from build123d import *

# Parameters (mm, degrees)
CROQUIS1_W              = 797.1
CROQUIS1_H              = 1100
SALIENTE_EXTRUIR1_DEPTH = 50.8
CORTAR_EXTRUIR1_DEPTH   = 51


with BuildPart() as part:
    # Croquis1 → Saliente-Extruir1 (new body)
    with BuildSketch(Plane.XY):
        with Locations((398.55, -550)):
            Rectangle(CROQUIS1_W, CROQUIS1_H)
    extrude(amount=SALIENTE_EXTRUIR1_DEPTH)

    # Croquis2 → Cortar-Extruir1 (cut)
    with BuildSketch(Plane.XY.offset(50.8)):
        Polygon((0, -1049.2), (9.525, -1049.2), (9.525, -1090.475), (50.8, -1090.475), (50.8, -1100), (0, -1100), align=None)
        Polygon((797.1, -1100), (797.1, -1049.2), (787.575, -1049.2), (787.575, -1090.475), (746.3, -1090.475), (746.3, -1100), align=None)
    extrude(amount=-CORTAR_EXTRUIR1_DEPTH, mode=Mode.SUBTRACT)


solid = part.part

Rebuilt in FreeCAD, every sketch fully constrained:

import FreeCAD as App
import Part
import Sketcher

V = App.Vector
Q = App.Units.Quantity

doc = App.newDocument("Part")
body = doc.addObject("PartDesign::Body", "Body")

# Sketch on XY plane
sketch1 = doc.addObject("Sketcher::SketchObject", "Sketch")
body.addObject(sketch1)
sketch1.AttachmentSupport = (doc.XY_Plane, [""])
sketch1.MapMode = "FlatFace"
sketch1.addGeometry(Part.LineSegment(V(0, 0, 0), V(0, -1100, 0)), False)
sketch1.addGeometry(Part.LineSegment(V(0, -1100, 0), V(797, -1100, 0)), False)
sketch1.addGeometry(Part.LineSegment(V(797, -1100, 0), V(797, 0, 0)), False)
sketch1.addGeometry(Part.LineSegment(V(797, 0, 0), V(0, 0, 0)), False)
sketch1.addConstraint(Sketcher.Constraint("Coincident", 0, 2, 1, 1))
sketch1.addConstraint(Sketcher.Constraint("Coincident", 1, 2, 2, 1))
sketch1.addConstraint(Sketcher.Constraint("Coincident", 2, 2, 3, 1))
sketch1.addConstraint(Sketcher.Constraint("Coincident", 3, 2, 0, 1))
sketch1.addConstraint(Sketcher.Constraint("Vertical", 0))
sketch1.addConstraint(Sketcher.Constraint("Horizontal", 1))
sketch1.addConstraint(Sketcher.Constraint("Vertical", 2))
sketch1.addConstraint(Sketcher.Constraint("Horizontal", 3))
sketch1.addConstraint(Sketcher.Constraint("Coincident", 3, 2, -1, 1))
sketch1.addConstraint(Sketcher.Constraint("DistanceY", 0, 2, 0, 1, Q("1100 mm")))
sketch1.addConstraint(Sketcher.Constraint("DistanceX", 1, 1, 1, 2, Q("797.1 mm")))
pad1 = doc.addObject("PartDesign::Pad", "Pad")
body.addObject(pad1)
pad1.Profile = sketch1
pad1.Length = 50.8

# Sketch on XY plane
sketch2 = doc.addObject("Sketcher::SketchObject", "Sketch001")
body.addObject(sketch2)
sketch2.AttachmentSupport = (doc.XY_Plane, [""])
sketch2.MapMode = "FlatFace"
sketch2.AttachmentOffset = App.Placement(V(0, 0, 50.8), App.Rotation())
sketch2.addGeometry(Part.LineSegment(V(10, -1049, 0), V(0, -1049, 0)), False)
sketch2.addGeometry(Part.LineSegment(V(0, -1049, 0), V(0, -1100, 0)), False)
sketch2.addGeometry(Part.LineSegment(V(0, -1100, 0), V(51, -1100, 0)), False)
sketch2.addGeometry(Part.LineSegment(V(51, -1100, 0), V(51, -1090, 0)), False)
sketch2.addGeometry(Part.LineSegment(V(51, -1090, 0), V(10, -1090, 0)), False)
sketch2.addGeometry(Part.LineSegment(V(10, -1090, 0), V(10, -1049, 0)), False)
sketch2.addGeometry(Part.LineSegment(V(797, -1100, 0), V(797, -1049, 0)), False)
sketch2.addGeometry(Part.LineSegment(V(797, -1049, 0), V(788, -1049, 0)), False)
sketch2.addGeometry(Part.LineSegment(V(788, -1049, 0), V(788, -1090, 0)), False)
sketch2.addGeometry(Part.LineSegment(V(788, -1090, 0), V(746, -1090, 0)), False)
sketch2.addGeometry(Part.LineSegment(V(746, -1090, 0), V(746, -1100, 0)), False)
sketch2.addGeometry(Part.LineSegment(V(746, -1100, 0), V(797, -1100, 0)), False)
sketch2.addConstraint(Sketcher.Constraint("Coincident", 0, 2, 1, 1))
sketch2.addConstraint(Sketcher.Constraint("Coincident", 1, 2, 2, 1))
sketch2.addConstraint(Sketcher.Constraint("Coincident", 2, 2, 3, 1))
sketch2.addConstraint(Sketcher.Constraint("Coincident", 3, 2, 4, 1))
sketch2.addConstraint(Sketcher.Constraint("Coincident", 4, 2, 5, 1))
sketch2.addConstraint(Sketcher.Constraint("Coincident", 5, 2, 0, 1))
sketch2.addConstraint(Sketcher.Constraint("Coincident", 6, 2, 7, 1))
sketch2.addConstraint(Sketcher.Constraint("Coincident", 7, 2, 8, 1))
sketch2.addConstraint(Sketcher.Constraint("Coincident", 8, 2, 9, 1))
sketch2.addConstraint(Sketcher.Constraint("Coincident", 9, 2, 10, 1))
sketch2.addConstraint(Sketcher.Constraint("Coincident", 10, 2, 11, 1))
sketch2.addConstraint(Sketcher.Constraint("Coincident", 11, 2, 6, 1))
sketch2.addConstraint(Sketcher.Constraint("Horizontal", 0))
sketch2.addConstraint(Sketcher.Constraint("Vertical", 1))
sketch2.addConstraint(Sketcher.Constraint("Horizontal", 2))
sketch2.addConstraint(Sketcher.Constraint("Vertical", 3))
sketch2.addConstraint(Sketcher.Constraint("Horizontal", 4))
sketch2.addConstraint(Sketcher.Constraint("Vertical", 5))
sketch2.addConstraint(Sketcher.Constraint("Vertical", 6))
sketch2.addConstraint(Sketcher.Constraint("Horizontal", 7))
sketch2.addConstraint(Sketcher.Constraint("Vertical", 8))
sketch2.addConstraint(Sketcher.Constraint("Horizontal", 9))
sketch2.addConstraint(Sketcher.Constraint("Vertical", 10))
sketch2.addConstraint(Sketcher.Constraint("Horizontal", 11))
sketch2.addConstraint(Sketcher.Constraint("PointOnObject", 0, 2, -2))
sketch2.addConstraint(Sketcher.Constraint("Horizontal", 5, 2, 6, 2))
sketch2.addConstraint(Sketcher.Constraint("Horizontal", 4, 2, 8, 2))
sketch2.addConstraint(Sketcher.Constraint("Horizontal", 2, 2, 10, 2))
sketch2.addConstraint(Sketcher.Constraint("Equal", 0, 7))
sketch2.addConstraint(Sketcher.Constraint("Equal", 4, 9))
sketch2.addConstraint(Sketcher.Constraint("Equal", 11, 1))
sketch2.addConstraint(Sketcher.Constraint("Equal", 7, 3))
sketch2.addConstraint(Sketcher.Constraint("DistanceX", 2, 1, 2, 2, Q("50.8 mm")))
sketch2.addConstraint(Sketcher.Constraint("DistanceY", 1, 2, -1, 1, Q("1100 mm")))
sketch2.addConstraint(Sketcher.Constraint("DistanceX", -1, 1, 6, 2, Q("797.1 mm")))
sketch2.addConstraint(Sketcher.Constraint("DistanceX", 0, 2, 0, 1, Q("9.525 mm")))
pocket1 = doc.addObject("PartDesign::Pocket", "Pocket")
body.addObject(pocket1)
pocket1.Profile = sketch2
pocket1.Length = 51

doc.recompute()
